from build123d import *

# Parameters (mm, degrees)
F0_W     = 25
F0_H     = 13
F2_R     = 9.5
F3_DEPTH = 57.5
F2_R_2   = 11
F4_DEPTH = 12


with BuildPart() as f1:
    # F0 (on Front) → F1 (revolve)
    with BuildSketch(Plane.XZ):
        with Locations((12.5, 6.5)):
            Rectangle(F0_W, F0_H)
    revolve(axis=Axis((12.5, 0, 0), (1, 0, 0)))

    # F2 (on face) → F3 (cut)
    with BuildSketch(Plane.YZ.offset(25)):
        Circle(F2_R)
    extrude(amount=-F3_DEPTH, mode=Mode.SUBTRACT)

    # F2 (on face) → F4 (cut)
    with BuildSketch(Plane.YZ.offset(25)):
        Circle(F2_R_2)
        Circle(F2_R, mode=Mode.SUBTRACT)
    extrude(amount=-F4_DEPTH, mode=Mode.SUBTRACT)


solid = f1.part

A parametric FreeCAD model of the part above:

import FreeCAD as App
import Part
import Sketcher
from FreeCAD import Vector

doc = App.newDocument("Part")
body = doc.addObject("PartDesign::Body", "Body")

# Sketch on XZ plane
sketch1 = body.newObject("Sketcher::SketchObject", "Sketch")
sketch1.AttachmentSupport = (doc.getObject("XZ_Plane"), [""])
sketch1.MapMode = "FlatFace"
sketch1.addGeometry([
    Part.LineSegment(Vector(0, 13, 0), Vector(0, 0, 0)),
    Part.LineSegment(Vector(0, 0, 0), Vector(25, 0, 0)),
    Part.LineSegment(Vector(25, 0, 0), Vector(25, 13, 0)),
    Part.LineSegment(Vector(25, 13, 0), Vector(0, 13, 0)),
], False)
sketch1.addConstraint([
    Sketcher.Constraint("Coincident", 0, 2, 1, 1),
    Sketcher.Constraint("Coincident", 1, 2, 2, 1),
    Sketcher.Constraint("Coincident", 2, 2, 3, 1),
    Sketcher.Constraint("Coincident", 3, 2, 0, 1),
    Sketcher.Constraint("Vertical", 0),
    Sketcher.Constraint("Horizontal", 1),
    Sketcher.Constraint("Vertical", 2),
    Sketcher.Constraint("Horizontal", 3),
    Sketcher.Constraint("Coincident", 0, 2, -1, 1),
    Sketcher.Constraint("DistanceX", 1, 1, 1, 2, 25.0),
    Sketcher.Constraint("DistanceY", 0, 2, 0, 1, 13.0),
])
revolution = body.newObject("PartDesign::Revolution", "Revolution")
revolution.Profile = sketch1
revolution.ReferenceAxis = (sketch1, ["H_Axis"])
revolution.Angle = 360

# Sketch on YZ plane
sketch2 = body.newObject("Sketcher::SketchObject", "Sketch001")
sketch2.AttachmentSupport = (doc.getObject("YZ_Plane"), [""])
sketch2.MapMode = "FlatFace"
sketch2.AttachmentOffset = App.Placement(Vector(0, 0, 25), App.Rotation())
sketch2.addGeometry(Part.Circle(Vector(0, 0, 0), Vector(0, 0, 1), 9.5), False)
sketch2.addConstraint([
    Sketcher.Constraint("Coincident", 0, 3, -1, 1),
    Sketcher.Constraint("Diameter", 0, 19.0),
])
pocket1 = body.newObject("PartDesign::Pocket", "Pocket")
pocket1.Profile = sketch2
pocket1.Length = 57.5

# Sketch on YZ plane
sketch3 = body.newObject("Sketcher::SketchObject", "Sketch002")
sketch3.AttachmentSupport = (doc.getObject("YZ_Plane"), [""])
sketch3.MapMode = "FlatFace"
sketch3.AttachmentOffset = App.Placement(Vector(0, 0, 25), App.Rotation())
sketch3.addGeometry([
    Part.Circle(Vector(0, 0, 0), Vector(0, 0, 1), 11),
    Part.Circle(Vector(0, 0, 0), Vector(0, 0, 1), 9.5),
], False)
sketch3.addConstraint([
    Sketcher.Constraint("Coincident", 0, 3, -1, 1),
    Sketcher.Constraint("Coincident", 1, 3, -1, 1),
    Sketcher.Constraint("Diameter", 0, 22.0),
    Sketcher.Constraint("Diameter", 1, 19.0),
])
pocket2 = body.newObject("PartDesign::Pocket", "Pocket001")
pocket2.Profile = sketch3
pocket2.Length = 12

doc.recompute()
